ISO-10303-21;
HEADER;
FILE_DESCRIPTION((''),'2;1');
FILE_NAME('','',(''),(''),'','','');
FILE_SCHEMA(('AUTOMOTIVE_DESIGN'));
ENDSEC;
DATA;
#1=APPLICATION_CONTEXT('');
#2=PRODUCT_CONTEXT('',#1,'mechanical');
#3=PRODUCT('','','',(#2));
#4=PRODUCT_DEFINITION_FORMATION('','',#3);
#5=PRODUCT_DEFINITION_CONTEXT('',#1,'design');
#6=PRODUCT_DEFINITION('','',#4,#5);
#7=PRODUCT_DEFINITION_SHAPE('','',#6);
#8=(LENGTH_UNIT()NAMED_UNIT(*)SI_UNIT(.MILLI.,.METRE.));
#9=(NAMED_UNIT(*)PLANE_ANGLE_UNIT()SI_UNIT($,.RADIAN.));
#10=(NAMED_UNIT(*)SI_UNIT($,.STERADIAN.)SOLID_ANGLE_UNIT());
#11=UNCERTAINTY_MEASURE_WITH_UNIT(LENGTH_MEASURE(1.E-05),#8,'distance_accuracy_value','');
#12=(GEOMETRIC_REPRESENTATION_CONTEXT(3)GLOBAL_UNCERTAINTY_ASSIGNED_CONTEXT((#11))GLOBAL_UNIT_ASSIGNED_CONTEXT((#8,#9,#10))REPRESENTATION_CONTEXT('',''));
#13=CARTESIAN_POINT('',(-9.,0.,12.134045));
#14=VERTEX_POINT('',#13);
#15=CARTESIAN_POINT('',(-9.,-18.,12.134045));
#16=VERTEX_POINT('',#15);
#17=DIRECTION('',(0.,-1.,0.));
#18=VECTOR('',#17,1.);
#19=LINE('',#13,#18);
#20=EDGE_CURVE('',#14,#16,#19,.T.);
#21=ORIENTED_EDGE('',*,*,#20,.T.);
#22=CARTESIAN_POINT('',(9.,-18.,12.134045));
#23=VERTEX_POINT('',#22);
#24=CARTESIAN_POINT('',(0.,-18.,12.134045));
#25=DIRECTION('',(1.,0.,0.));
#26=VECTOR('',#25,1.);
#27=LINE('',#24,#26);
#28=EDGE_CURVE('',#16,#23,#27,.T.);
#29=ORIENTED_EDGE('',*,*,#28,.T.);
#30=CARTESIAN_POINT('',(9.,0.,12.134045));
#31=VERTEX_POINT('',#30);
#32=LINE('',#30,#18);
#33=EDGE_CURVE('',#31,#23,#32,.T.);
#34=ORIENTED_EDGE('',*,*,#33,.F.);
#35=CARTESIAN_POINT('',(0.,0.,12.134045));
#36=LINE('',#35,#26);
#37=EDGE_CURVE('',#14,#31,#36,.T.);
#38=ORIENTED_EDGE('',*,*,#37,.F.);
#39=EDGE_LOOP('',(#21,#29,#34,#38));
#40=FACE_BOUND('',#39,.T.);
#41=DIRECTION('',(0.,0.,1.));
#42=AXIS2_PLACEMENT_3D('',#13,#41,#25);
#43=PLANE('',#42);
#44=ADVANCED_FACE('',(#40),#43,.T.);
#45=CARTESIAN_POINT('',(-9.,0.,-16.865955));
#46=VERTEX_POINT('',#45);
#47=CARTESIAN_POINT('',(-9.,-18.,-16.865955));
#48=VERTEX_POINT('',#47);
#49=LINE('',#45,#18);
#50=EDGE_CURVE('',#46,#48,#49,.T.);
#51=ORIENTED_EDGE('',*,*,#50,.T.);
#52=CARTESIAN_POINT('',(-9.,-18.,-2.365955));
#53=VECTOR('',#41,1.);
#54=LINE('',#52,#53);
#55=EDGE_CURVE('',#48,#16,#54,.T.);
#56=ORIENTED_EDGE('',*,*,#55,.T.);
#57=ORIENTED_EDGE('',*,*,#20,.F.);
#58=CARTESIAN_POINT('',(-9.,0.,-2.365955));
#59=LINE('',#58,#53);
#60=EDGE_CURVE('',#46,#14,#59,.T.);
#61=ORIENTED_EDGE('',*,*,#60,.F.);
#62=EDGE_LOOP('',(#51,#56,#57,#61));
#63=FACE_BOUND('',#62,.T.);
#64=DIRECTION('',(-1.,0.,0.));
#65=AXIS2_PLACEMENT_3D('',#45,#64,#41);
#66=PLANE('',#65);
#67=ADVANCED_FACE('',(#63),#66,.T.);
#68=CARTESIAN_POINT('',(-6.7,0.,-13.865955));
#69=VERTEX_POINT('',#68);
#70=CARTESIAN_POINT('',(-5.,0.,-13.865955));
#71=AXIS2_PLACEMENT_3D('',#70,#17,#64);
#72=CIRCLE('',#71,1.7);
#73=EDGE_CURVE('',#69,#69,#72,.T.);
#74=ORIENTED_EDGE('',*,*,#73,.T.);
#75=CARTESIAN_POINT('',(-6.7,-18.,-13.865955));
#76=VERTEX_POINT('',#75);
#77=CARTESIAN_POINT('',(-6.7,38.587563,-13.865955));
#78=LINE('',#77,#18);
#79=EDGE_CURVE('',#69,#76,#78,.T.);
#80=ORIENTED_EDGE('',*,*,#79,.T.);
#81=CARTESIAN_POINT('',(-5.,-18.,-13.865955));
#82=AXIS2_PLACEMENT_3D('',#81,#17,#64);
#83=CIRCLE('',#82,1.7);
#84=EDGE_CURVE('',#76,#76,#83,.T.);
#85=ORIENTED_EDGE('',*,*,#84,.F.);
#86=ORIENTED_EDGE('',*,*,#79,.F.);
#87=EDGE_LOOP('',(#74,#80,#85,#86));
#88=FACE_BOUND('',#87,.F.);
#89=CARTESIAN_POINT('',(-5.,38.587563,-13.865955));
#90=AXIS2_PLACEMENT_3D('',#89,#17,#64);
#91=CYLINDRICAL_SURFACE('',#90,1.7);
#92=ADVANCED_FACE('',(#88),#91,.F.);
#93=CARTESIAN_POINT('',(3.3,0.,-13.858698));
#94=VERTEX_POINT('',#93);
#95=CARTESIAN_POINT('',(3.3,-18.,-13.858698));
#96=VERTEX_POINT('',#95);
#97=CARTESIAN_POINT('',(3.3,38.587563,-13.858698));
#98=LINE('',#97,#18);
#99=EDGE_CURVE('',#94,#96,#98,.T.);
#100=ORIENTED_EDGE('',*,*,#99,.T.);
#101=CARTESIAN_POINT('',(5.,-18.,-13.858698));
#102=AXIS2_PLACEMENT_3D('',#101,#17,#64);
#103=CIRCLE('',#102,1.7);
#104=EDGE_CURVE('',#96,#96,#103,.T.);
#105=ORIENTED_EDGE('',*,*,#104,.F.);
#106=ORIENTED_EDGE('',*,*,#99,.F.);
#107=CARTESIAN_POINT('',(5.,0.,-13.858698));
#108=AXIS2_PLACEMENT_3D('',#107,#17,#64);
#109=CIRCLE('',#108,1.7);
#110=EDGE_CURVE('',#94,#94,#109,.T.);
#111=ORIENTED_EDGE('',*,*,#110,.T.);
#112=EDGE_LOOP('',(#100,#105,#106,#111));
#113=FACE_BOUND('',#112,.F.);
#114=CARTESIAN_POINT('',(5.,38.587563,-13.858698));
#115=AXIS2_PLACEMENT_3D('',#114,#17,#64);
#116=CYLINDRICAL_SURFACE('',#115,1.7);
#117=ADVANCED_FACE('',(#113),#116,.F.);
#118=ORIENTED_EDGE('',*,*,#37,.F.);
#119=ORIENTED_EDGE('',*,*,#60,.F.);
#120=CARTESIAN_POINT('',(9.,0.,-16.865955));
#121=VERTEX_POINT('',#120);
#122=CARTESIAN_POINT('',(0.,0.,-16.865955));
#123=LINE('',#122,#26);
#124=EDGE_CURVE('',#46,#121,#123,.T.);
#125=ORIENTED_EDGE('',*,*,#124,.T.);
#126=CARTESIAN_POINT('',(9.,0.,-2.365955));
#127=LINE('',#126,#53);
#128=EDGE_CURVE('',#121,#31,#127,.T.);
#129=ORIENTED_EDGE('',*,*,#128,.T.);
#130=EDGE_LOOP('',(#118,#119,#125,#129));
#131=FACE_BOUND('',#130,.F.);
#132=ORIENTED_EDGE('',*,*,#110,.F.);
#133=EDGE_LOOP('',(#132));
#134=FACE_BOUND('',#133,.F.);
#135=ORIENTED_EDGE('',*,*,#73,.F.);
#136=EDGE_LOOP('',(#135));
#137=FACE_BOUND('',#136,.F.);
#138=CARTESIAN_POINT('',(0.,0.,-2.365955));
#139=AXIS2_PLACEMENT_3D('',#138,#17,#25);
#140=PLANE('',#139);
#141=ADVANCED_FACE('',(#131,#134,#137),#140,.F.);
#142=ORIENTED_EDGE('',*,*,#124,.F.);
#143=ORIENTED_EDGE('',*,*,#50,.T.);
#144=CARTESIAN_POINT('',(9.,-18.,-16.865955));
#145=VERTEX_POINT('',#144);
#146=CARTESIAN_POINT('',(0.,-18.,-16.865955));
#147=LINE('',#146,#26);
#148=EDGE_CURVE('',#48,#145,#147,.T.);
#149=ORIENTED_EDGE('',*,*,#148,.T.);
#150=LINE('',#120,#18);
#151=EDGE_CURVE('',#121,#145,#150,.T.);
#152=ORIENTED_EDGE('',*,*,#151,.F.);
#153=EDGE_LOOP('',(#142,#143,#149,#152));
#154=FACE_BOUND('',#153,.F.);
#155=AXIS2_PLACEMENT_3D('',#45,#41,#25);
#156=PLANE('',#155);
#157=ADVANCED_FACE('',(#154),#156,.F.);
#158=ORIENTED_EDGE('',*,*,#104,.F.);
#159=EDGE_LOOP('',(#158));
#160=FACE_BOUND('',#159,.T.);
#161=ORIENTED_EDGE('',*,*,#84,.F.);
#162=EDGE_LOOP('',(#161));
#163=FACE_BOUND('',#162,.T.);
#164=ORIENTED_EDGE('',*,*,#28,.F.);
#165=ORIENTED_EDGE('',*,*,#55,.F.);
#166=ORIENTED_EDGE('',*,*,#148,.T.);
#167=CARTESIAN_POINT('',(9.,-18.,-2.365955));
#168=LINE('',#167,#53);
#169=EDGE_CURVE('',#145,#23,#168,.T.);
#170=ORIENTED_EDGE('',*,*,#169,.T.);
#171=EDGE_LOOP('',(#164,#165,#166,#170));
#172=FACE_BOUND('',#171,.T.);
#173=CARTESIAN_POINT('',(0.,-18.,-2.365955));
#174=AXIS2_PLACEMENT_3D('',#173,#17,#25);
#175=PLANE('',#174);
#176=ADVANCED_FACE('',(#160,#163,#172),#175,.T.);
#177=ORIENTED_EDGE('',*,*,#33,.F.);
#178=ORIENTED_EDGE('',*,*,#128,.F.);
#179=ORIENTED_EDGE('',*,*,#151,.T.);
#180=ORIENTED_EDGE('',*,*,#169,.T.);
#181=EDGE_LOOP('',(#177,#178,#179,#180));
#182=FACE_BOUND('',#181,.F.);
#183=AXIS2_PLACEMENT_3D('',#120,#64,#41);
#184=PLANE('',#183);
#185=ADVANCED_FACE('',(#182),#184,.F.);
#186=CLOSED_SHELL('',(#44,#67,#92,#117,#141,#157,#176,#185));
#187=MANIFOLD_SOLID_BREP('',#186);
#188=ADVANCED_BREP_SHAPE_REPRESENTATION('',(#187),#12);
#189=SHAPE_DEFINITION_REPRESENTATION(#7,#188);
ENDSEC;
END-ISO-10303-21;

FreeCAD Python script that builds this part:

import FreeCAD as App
import Part
import Sketcher
from FreeCAD import Vector


def add_polygon(sketch, points):
    """Adds a closed chain of lines whose ends are joined by coincident constraints."""
    first, n = sketch.GeometryCount, len(points)
    for a, b in zip(points, points[1:] + points[:1]):
        sketch.addGeometry(Part.LineSegment(App.Vector(*a, 0), App.Vector(*b, 0)), False)
    for i in range(n):
        sketch.addConstraint(Sketcher.Constraint("Coincident", first + i, 2, first + (i + 1) % n, 1))

doc = App.newDocument("Part")
body = doc.addObject("PartDesign::Body", "Body")

# Sketch on XZ plane
sketch1 = body.newObject("Sketcher::SketchObject", "Sketch")
sketch1.AttachmentSupport = (doc.getObject("XZ_Plane"), [""])
sketch1.MapMode = "FlatFace"
add_polygon(sketch1, [(-9, 12), (-9, -17), (9, -17), (9, 12)])  # lines 0-3
sketch1.addConstraint(Sketcher.Constraint("Vertical", 0))
sketch1.addConstraint(Sketcher.Constraint("Horizontal", 1))
sketch1.addConstraint(Sketcher.Constraint("Vertical", 2))
sketch1.addConstraint(Sketcher.Constraint("Horizontal", 3))
sketch1.addConstraint(Sketcher.Constraint("DistanceX", 1, 1, 1, 2, 18.0))
sketch1.addConstraint(Sketcher.Constraint("DistanceY", 0, 2, 0, 1, 29.0))
sketch1.addConstraint(Sketcher.Constraint("DistanceX", 0, 2, -1, 1, 9.0))
sketch1.addConstraint(Sketcher.Constraint("DistanceY", 0, 2, -1, 1, 16.865955))
pad1 = body.newObject("PartDesign::Pad", "Pad")
pad1.Profile = sketch1
pad1.Length = 18

# Sketch on XZ plane
sketch2 = body.newObject("Sketcher::SketchObject", "Sketch001")
sketch2.AttachmentSupport = (doc.getObject("XZ_Plane"), [""])
sketch2.MapMode = "FlatFace"
sketch2.addGeometry(Part.Circle(Vector(-5, -13.9, 0), Vector(0, 0, 1), 1.7), False)
sketch2.addGeometry(Part.Circle(Vector(5, -13.9, 0), Vector(0, 0, 1), 1.7), False)
sketch2.addConstraint(Sketcher.Constraint("Equal", 0, 1))
sketch2.addConstraint(Sketcher.Constraint("Diameter", 0, 3.4))
sketch2.addConstraint(Sketcher.Constraint("DistanceX", 0, 3, -1, 1, 5.0))
sketch2.addConstraint(Sketcher.Constraint("DistanceX", -1, 1, 1, 3, 5.0))
sketch2.addConstraint(Sketcher.Constraint("DistanceY", 1, 3, -1, 1, 13.858698))
sketch2.addConstraint(Sketcher.Constraint("DistanceY", 0, 3, -1, 1, 13.865955))
doc.recompute()
hole = body.newObject("PartDesign::Hole", "Hole")
hole.Profile = sketch2
hole.ThreadType = "None"
hole.Diameter = 3.4
hole.DepthType = "ThroughAll"
hole.Reversed = True

doc.recompute()
